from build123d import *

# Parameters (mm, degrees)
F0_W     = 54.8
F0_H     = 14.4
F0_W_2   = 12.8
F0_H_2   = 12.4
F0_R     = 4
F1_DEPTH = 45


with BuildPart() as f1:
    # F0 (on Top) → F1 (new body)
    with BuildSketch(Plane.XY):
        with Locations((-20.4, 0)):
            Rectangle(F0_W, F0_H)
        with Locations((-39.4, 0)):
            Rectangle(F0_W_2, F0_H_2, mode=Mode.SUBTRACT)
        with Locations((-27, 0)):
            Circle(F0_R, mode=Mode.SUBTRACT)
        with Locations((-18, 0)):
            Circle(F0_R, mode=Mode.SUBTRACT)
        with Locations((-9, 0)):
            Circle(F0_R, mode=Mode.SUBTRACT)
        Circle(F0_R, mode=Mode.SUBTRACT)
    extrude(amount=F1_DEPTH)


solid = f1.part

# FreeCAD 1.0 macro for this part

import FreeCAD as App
import Part
import Sketcher


def add_polygon(sketch, points):
    """Adds a closed chain of lines whose ends are joined by coincident constraints."""
    first, n = sketch.GeometryCount, len(points)
    for a, b in zip(points, points[1:] + points[:1]):
        sketch.addGeometry(Part.LineSegment(App.Vector(*a, 0), App.Vector(*b, 0)), False)
    for i in range(n):
        sketch.addConstraint(Sketcher.Constraint("Coincident", first + i, 2, first + (i + 1) % n, 1))

doc = App.newDocument("Part")
params = doc.addObject("Spreadsheet::Sheet", "Params")
for row, (alias, value) in enumerate([
    ("sketch1_diameter", "8 mm"),
    ("sketch1_width", "54.8 mm"),
    ("sketch1_width2", "12.8 mm"),
    ("sketch1_height", "14.4 mm"),
    ("sketch1_height2", "12.4 mm"),
    ("pad1_length", "45 mm"),
], start=1):
    params.set(f"A{row}", alias)
    params.set(f"B{row}", "=" + value)
    params.setAlias(f"B{row}", alias)

body = doc.addObject("PartDesign::Body", "Body")

# Sketch on XY plane
sketch1 = body.newObject("Sketcher::SketchObject", "Sketch")
sketch1.AttachmentSupport = (doc.getObject("XY_Plane"), [""])
sketch1.MapMode = "FlatFace"
add_polygon(sketch1, [(-47.8, 7.2), (-47.8, -7.2), (7, -7.2), (7, 7.2)])  # lines 0-3
add_polygon(sketch1, [(-33, -6.2), (-45.8, -6.2), (-45.8, 6.2), (-33, 6.2)])  # lines 4-7
sketch1.addGeometry(Part.Circle(App.Vector(-27, 0, 0), App.Vector(0, 0, 1), 4), False)  # 8
sketch1.addGeometry(Part.Circle(App.Vector(-18, 0, 0), App.Vector(0, 0, 1), 4), False)  # 9
sketch1.addGeometry(Part.Circle(App.Vector(-9, 0, 0), App.Vector(0, 0, 1), 4), False)  # 10
sketch1.addGeometry(Part.Circle(App.Vector(0, 0, 0), App.Vector(0, 0, 1), 4), False)  # 11
sketch1.addConstraint([
    Sketcher.Constraint("Vertical", 0),
    Sketcher.Constraint("Horizontal", 1),
    Sketcher.Constraint("Vertical", 2),
    Sketcher.Constraint("Horizontal", 3),
    Sketcher.Constraint("Horizontal", 4),
    Sketcher.Constraint("Vertical", 5),
    Sketcher.Constraint("Horizontal", 6),
    Sketcher.Constraint("Vertical", 7),
    Sketcher.Constraint("Coincident", 11, 3, -1, 1),
    Sketcher.Constraint("Equal", 8, 9),
    Sketcher.Constraint("Equal", 9, 10),
    Sketcher.Constraint("Equal", 10, 11),
    Sketcher.Constraint("PointOnObject", 8, 3, -1),
    Sketcher.Constraint("PointOnObject", 9, 3, -1),
    Sketcher.Constraint("PointOnObject", 10, 3, -1),
    Sketcher.Constraint("Diameter", 8, 8.0),
    Sketcher.Constraint("DistanceX", 1, 1, 1, 2, 54.8),
    Sketcher.Constraint("DistanceX", 4, 2, 4, 1, 12.8),
    Sketcher.Constraint("DistanceY", 0, 2, 0, 1, 14.4),
    Sketcher.Constraint("DistanceY", 5, 1, 5, 2, 12.4),
    Sketcher.Constraint("DistanceX", 8, 3, -1, 1, 27.0),
    Sketcher.Constraint("DistanceX", 9, 3, -1, 1, 18.0),
    Sketcher.Constraint("DistanceX", 10, 3, -1, 1, 9.0),
    Sketcher.Constraint("DistanceX", -1, 1, 1, 2, 7.0),
    Sketcher.Constraint("DistanceX", 6, 2, -1, 1, 33.0),
    Sketcher.Constraint("DistanceY", 0, 2, 4, 2, 1.0),
    Sketcher.Constraint("DistanceY", 0, 2, -1, 1, 7.2),
])
sketch1.setExpression("Constraints[23]", "Params.sketch1_diameter")
sketch1.setExpression("Constraints[24]", "Params.sketch1_width")
sketch1.setExpression("Constraints[25]", "Params.sketch1_width2")
sketch1.setExpression("Constraints[26]", "Params.sketch1_height")
sketch1.setExpression("Constraints[27]", "Params.sketch1_height2")
pad1 = body.newObject("PartDesign::Pad", "Pad")
pad1.Profile = sketch1
pad1.setExpression("Length", "Params.pad1_length")

doc.recompute()
